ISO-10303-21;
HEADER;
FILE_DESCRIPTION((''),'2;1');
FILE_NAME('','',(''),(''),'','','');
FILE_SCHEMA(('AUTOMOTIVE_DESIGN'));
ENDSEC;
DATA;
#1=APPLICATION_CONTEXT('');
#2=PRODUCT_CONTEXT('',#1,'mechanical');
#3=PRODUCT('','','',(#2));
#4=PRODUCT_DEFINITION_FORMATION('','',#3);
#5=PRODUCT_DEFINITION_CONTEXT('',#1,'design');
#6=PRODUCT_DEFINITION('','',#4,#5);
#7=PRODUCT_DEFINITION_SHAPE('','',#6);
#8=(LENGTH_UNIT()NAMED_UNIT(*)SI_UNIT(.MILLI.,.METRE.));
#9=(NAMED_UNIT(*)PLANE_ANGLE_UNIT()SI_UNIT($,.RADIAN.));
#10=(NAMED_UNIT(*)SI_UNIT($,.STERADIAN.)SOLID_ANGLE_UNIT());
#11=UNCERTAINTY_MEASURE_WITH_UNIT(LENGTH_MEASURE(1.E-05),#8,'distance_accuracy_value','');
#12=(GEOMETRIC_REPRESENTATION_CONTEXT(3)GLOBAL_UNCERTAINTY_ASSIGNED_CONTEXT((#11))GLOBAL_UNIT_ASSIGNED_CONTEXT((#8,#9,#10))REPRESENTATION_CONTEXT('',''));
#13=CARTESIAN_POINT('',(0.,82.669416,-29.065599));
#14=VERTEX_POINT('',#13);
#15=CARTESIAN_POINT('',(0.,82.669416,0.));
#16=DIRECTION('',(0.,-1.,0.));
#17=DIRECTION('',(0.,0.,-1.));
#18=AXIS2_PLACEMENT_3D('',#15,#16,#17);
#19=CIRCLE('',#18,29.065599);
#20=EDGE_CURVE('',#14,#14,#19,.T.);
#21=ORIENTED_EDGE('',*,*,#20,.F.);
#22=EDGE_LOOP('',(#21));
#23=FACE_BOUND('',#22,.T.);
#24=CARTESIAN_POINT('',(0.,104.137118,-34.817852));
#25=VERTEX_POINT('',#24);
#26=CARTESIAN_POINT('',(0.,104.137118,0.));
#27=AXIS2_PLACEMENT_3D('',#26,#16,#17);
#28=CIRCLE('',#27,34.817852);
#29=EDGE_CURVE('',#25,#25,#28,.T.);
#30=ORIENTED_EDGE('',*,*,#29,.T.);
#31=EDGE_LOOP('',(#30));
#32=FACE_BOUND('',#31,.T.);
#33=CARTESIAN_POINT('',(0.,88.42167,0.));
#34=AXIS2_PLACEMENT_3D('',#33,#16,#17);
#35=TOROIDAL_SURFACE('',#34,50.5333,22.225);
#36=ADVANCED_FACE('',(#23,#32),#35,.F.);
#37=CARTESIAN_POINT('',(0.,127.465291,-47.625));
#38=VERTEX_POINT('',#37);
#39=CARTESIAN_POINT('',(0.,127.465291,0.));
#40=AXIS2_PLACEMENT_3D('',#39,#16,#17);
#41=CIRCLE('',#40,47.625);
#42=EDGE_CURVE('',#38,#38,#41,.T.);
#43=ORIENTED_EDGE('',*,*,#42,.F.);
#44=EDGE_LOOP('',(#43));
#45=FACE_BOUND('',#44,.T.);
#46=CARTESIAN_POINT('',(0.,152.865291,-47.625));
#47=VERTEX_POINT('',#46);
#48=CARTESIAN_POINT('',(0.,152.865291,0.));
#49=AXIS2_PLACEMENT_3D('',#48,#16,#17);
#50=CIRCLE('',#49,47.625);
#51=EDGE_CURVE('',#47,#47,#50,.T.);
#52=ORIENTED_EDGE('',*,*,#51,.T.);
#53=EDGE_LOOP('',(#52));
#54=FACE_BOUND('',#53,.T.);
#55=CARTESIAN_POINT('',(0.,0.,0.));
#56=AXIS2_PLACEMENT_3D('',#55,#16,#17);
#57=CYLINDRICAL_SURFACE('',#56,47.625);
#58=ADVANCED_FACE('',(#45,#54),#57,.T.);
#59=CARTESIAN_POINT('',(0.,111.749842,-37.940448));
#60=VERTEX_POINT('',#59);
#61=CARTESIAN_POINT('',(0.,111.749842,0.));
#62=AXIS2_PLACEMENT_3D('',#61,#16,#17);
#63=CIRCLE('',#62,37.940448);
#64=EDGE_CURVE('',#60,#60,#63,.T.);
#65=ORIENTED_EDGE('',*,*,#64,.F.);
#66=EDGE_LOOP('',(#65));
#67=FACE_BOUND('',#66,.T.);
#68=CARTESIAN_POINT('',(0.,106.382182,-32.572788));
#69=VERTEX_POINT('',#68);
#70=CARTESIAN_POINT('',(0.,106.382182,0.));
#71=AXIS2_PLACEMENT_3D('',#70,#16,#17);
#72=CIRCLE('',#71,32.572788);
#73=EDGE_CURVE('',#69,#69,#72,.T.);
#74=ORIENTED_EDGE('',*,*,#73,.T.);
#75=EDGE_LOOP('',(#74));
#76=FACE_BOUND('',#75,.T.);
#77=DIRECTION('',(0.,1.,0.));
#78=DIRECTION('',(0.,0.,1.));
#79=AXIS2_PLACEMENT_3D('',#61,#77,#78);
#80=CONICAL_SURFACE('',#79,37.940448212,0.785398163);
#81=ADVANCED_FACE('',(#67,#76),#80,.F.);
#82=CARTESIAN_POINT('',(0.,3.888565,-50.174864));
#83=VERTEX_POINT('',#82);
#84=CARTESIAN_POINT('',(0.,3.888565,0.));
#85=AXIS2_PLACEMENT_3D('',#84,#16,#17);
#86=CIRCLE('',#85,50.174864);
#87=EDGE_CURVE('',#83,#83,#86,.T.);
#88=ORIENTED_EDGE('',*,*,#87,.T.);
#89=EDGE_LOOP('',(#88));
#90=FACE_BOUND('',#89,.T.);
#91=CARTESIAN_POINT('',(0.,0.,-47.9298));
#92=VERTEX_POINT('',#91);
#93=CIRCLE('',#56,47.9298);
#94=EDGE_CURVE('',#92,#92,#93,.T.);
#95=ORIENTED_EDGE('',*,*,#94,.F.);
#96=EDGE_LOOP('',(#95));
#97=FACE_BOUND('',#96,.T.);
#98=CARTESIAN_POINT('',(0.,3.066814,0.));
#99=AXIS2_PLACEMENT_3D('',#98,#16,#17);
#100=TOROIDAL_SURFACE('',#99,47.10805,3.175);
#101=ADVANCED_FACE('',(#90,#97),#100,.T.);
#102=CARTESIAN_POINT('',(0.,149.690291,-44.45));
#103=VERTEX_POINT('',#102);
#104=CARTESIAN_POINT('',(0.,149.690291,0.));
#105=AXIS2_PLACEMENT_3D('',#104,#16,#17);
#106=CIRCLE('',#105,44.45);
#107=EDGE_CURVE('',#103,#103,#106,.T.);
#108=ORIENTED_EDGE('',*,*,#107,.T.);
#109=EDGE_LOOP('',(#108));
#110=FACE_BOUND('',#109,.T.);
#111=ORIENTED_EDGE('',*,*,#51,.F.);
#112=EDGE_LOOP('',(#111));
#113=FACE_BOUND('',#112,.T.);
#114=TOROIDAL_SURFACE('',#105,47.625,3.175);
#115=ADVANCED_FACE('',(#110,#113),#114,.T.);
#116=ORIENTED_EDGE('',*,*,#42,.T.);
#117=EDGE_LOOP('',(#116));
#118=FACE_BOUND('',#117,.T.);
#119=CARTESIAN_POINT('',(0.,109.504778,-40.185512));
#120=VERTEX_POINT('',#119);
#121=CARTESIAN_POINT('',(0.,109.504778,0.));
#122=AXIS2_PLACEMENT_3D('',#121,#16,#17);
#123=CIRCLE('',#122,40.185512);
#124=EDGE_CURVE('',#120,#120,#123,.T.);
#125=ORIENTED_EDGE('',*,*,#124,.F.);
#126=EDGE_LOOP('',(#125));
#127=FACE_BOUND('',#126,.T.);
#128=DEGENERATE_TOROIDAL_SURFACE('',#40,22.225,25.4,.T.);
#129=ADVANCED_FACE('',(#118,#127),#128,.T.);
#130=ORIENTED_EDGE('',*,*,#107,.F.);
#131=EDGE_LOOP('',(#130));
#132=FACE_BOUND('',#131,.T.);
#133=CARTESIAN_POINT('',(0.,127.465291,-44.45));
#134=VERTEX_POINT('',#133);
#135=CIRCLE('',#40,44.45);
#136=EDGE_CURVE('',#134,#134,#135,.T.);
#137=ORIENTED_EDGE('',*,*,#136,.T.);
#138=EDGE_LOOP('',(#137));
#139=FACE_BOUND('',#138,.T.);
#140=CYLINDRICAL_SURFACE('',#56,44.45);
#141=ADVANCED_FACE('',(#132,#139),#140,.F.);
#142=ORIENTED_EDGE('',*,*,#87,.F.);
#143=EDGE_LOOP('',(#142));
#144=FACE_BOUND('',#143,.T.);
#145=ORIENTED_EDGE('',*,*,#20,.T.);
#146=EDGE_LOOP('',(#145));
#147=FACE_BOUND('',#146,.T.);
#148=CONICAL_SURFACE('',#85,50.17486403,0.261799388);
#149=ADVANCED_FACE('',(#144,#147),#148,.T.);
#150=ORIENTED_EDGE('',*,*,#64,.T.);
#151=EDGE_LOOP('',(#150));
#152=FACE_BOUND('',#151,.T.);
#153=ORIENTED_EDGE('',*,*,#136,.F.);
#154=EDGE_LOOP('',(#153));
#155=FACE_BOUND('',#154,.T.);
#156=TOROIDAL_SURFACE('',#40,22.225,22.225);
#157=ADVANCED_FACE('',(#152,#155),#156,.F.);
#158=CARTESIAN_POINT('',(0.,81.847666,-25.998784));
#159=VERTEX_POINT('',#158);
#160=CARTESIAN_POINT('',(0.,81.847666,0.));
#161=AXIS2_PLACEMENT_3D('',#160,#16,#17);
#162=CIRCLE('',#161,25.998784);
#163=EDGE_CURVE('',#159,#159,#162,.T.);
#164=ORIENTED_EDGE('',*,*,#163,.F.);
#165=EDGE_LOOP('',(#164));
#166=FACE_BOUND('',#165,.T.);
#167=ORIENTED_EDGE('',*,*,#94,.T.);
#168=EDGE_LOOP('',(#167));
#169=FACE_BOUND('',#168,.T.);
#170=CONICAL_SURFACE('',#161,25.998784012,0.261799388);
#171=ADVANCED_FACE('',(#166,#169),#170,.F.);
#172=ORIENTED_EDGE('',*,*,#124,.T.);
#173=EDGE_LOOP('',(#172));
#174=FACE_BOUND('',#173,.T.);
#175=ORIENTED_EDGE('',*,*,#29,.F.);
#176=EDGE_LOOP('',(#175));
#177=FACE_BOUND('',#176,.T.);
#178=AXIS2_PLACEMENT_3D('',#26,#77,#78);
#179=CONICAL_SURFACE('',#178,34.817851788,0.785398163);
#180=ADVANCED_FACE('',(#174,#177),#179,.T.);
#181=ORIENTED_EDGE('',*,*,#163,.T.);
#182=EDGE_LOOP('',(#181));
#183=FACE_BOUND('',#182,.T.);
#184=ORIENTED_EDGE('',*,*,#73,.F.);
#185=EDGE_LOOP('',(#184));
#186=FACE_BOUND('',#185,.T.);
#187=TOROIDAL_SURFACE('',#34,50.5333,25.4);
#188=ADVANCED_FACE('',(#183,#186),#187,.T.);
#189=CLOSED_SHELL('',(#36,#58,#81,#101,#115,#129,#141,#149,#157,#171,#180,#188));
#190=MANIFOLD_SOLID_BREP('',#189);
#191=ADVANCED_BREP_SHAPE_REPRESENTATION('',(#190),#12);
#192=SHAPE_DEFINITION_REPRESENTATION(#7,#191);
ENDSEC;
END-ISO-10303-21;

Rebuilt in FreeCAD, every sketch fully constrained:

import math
import FreeCAD as App
import Part
import Sketcher

V = App.Vector
Q = App.Units.Quantity

doc = App.newDocument("Part")
body = doc.addObject("PartDesign::Body", "Body")

sketch1 = body.newObject("Sketcher::SketchObject", "Sketch")
sketch1.AttachmentSupport = (doc.getObject("XY_Plane"), [""])
sketch1.MapMode = "FlatFace"
sketch1.addGeometry([
    Part.LineSegment(V(25.998784, 81.847666, 0), V(47.9298, 0, 0)),
    Part.ArcOfCircle(Part.Circle(V(47.10805, 3.066814, 0), V(0, 0, 1), 3.175), math.radians(-75), math.radians(15)),
    Part.LineSegment(V(50.174864, 3.888565, 0), V(29.065599, 82.669416, 0)),
    Part.ArcOfCircle(Part.Circle(V(50.5333, 88.42167, 0), V(0, 0, 1), 22.225), math.radians(135), math.radians(195)),
    Part.LineSegment(V(34.817852, 104.137118, 0), V(40.185512, 109.504778, 0)),
    Part.ArcOfCircle(Part.Circle(V(22.225, 127.465291, 0), V(0, 0, 1), 25.4), math.radians(-45), math.radians(0)),
    Part.LineSegment(V(47.625, 127.465291, 0), V(47.625, 152.865291, 0)),
    Part.ArcOfCircle(Part.Circle(V(47.625, 149.690291, 0), V(0, 0, 1), 3.175), math.radians(90), math.radians(180)),
    Part.LineSegment(V(44.45, 149.690291, 0), V(44.45, 127.465291, 0)),
    Part.ArcOfCircle(Part.Circle(V(22.225, 127.465291, 0), V(0, 0, 1), 22.225), math.radians(-45), math.radians(0)),
    Part.LineSegment(V(37.940448, 111.749842, 0), V(32.572788, 106.382182, 0)),
    Part.ArcOfCircle(Part.Circle(V(50.5333, 88.42167, 0), V(0, 0, 1), 25.4), math.radians(135), math.radians(195)),
], False)
sketch1.addConstraint([
    Sketcher.Constraint("Coincident", 0, 2, 1, 1),
    Sketcher.Constraint("Tangent", 1, 2, 2, 1),
    Sketcher.Constraint("Tangent", 2, 2, 3, 2),
    Sketcher.Constraint("Tangent", 3, 1, 4, 1),
    Sketcher.Constraint("Tangent", 4, 2, 5, 1),
    Sketcher.Constraint("Tangent", 5, 2, 6, 1),
    Sketcher.Constraint("Coincident", 6, 2, 7, 1),
    Sketcher.Constraint("Tangent", 7, 2, 8, 1),
    Sketcher.Constraint("Tangent", 8, 2, 9, 2),
    Sketcher.Constraint("Tangent", 9, 1, 10, 1),
    Sketcher.Constraint("Tangent", 10, 2, 11, 1),
    Sketcher.Constraint("Tangent", 11, 2, 0, 1),
    Sketcher.Constraint("Vertical", 6),
    Sketcher.Constraint("Vertical", 8),
    Sketcher.Constraint("Coincident", 9, 3, 5, 3),
    Sketcher.Constraint("Coincident", 11, 3, 3, 3),
    Sketcher.Constraint("Equal", 1, 7),
    Sketcher.Constraint("Equal", 3, 9),
    Sketcher.Constraint("Equal", 5, 11),
    Sketcher.Constraint("PointOnObject", 0, 2, -1),
    Sketcher.Constraint("Parallel", 0, 2),
    Sketcher.Constraint("Vertical", 7, 3, 5, 2),
    Sketcher.Constraint("Radius", 5, Q("1 in")),
    Sketcher.Constraint("DistanceY", 6, 1, 6, 2, Q("1 in")),
    Sketcher.Constraint("Angle", 0, Q("-75 deg")),
    Sketcher.Constraint("Angle", 4, Q("45 deg")),
    Sketcher.Constraint("Radius", 1, Q("0.125 in")),
    Sketcher.Constraint("DistanceX", -1, 1, 7, 2, Q("1.75 in")),
    Sketcher.Constraint("DistanceX", -1, 1, 0, 2, Q("1.887 in")),
    Sketcher.Constraint("DistanceX", -1, 1, 3, 3, Q("1.9895 in")),
])
revolution = body.newObject("PartDesign::Revolution", "Revolution")
revolution.Profile = sketch1
revolution.ReferenceAxis = (sketch1, ["V_Axis"])
revolution.Angle = 360

doc.recompute()
